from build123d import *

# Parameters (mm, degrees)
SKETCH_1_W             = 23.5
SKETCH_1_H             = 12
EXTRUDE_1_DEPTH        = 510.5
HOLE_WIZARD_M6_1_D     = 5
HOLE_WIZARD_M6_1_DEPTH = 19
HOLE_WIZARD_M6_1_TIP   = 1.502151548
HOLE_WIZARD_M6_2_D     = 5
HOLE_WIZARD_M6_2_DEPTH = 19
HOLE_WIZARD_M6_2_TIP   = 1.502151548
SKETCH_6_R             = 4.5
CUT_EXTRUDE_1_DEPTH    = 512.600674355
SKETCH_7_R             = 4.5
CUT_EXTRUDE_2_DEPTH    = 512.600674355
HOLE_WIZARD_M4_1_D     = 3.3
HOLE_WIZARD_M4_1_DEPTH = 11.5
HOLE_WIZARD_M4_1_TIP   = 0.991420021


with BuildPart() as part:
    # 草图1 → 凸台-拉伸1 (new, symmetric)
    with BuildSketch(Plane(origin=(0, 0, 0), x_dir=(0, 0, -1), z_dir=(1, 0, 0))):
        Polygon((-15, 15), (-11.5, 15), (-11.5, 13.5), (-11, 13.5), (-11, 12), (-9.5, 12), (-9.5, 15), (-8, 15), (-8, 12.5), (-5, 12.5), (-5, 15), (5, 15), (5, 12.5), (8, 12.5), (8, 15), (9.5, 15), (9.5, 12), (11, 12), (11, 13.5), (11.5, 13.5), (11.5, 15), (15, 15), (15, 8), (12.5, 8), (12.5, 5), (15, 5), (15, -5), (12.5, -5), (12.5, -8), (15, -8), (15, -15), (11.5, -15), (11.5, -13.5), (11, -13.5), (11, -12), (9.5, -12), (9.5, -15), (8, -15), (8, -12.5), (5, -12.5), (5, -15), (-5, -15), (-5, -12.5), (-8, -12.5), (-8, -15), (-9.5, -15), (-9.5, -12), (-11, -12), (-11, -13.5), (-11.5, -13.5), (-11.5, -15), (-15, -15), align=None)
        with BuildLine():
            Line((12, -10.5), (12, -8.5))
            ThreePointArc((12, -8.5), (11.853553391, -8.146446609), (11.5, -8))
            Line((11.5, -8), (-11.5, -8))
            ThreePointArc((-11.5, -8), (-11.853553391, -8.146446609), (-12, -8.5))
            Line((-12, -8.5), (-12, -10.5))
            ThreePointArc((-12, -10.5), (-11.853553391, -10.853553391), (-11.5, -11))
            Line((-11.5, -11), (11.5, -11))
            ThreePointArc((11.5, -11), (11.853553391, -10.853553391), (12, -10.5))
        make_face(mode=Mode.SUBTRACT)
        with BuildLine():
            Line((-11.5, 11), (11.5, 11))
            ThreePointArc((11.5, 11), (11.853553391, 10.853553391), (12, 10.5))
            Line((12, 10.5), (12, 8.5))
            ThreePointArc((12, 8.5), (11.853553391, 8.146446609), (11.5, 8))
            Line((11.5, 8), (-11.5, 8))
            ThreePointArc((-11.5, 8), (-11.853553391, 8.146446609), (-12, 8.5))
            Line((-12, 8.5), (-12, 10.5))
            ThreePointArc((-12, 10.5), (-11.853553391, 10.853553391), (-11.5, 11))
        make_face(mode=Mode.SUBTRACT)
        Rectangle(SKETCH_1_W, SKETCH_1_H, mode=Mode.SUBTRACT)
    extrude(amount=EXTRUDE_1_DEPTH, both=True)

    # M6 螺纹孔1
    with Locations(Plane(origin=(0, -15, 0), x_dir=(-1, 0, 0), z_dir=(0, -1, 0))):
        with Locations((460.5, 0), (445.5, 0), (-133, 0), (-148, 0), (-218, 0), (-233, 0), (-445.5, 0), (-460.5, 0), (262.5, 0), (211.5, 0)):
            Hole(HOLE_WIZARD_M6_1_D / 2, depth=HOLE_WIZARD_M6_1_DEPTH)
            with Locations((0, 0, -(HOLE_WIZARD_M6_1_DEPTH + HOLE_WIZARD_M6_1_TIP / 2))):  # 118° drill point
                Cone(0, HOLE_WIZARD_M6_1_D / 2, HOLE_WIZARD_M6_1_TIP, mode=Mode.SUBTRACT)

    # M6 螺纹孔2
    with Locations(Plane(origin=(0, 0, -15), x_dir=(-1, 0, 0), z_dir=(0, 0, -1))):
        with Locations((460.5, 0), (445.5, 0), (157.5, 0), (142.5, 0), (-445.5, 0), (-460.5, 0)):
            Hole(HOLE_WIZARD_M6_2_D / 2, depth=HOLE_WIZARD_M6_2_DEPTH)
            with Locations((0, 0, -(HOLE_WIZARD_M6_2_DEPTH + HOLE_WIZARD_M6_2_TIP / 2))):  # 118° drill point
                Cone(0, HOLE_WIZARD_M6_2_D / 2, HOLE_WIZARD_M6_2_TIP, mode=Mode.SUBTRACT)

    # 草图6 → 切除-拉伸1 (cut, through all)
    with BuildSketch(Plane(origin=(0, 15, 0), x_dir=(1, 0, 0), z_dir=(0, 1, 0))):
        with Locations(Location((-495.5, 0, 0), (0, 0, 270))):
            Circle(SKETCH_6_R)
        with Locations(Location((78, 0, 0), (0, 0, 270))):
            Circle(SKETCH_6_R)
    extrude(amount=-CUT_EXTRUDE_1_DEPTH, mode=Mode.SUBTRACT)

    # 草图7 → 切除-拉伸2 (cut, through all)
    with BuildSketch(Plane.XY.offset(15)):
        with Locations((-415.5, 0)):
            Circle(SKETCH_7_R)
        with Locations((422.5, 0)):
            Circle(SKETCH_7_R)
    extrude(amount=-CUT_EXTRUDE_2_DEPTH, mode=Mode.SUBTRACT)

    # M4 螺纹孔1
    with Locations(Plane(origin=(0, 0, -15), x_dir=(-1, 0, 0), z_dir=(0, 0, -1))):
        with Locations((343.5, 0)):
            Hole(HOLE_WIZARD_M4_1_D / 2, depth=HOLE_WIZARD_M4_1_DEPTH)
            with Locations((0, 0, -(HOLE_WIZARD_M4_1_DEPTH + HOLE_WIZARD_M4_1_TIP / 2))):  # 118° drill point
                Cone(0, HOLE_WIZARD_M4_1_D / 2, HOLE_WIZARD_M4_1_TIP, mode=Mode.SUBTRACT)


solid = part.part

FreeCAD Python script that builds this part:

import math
import FreeCAD as App
import Part
import Sketcher
from FreeCAD import Vector
Q = App.Units.Quantity


def add_polygon(sketch, points):
    """Adds a closed chain of lines whose ends are joined by coincident constraints."""
    first, n = sketch.GeometryCount, len(points)
    for a, b in zip(points, points[1:] + points[:1]):
        sketch.addGeometry(Part.LineSegment(App.Vector(*a, 0), App.Vector(*b, 0)), False)
    for i in range(n):
        sketch.addConstraint(Sketcher.Constraint("Coincident", first + i, 2, first + (i + 1) % n, 1))

doc = App.newDocument("Part")
body = doc.addObject("PartDesign::Body", "Body")

# Sketch on YZ plane
sketch1 = doc.addObject("Sketcher::SketchObject", "Sketch")
body.addObject(sketch1)
sketch1.AttachmentSupport = (doc.YZ_Plane, [""])
sketch1.MapMode = "FlatFace"
add_polygon(sketch1, [(15, 11.5), (15, 15), (-15, 15), (-15, 11.5), (-13.5, 11.5), (-13.5, 11), (-12, 11), (-12, 9.5), (-15, 9.5), (-15, 8), (-12.5, 8), (-12.5, 5), (-15, 5), (-15, -5), (-12.5, -5), (-12.5, -8), (-15, -8), (-15, -9.5), (-12, -9.5), (-12, -11), (-13.5, -11), (-13.5, -11.5), (-15, -11.5), (-15, -15), (-8, -15), (-8, -12.5), (-5, -12.5), (-5, -15), (5, -15), (5, -12.5), (8, -12.5), (8, -15), (15, -15), (15, -11.5), (13.5, -11.5), (13.5, -11), (12, -11), (12, -9.5), (15, -9.5), (15, -8), (12.5, -8), (12.5, -5), (15, -5), (15, 5), (12.5, 5), (12.5, 8), (15, 8), (15, 9.5), (12, 9.5), (12, 11), (13.5, 11), (13.5, 11.5)])  # lines 0-51
sketch1.addGeometry(Part.ArcOfCircle(Part.Circle(Vector(-10.5, -11.5, 0), Vector(0, 0, 1), 0.5), math.radians(180), math.radians(270)), False)  # 52
sketch1.addGeometry(Part.LineSegment(Vector(-11, -11.5, 0), Vector(-11, 11.5, 0)), False)  # 53
sketch1.addGeometry(Part.ArcOfCircle(Part.Circle(Vector(-10.5, 11.5, 0), Vector(0, 0, 1), 0.5), math.radians(90), math.radians(180)), False)  # 54
sketch1.addGeometry(Part.LineSegment(Vector(-10.5, 12, 0), Vector(-8.5, 12, 0)), False)  # 55
sketch1.addGeometry(Part.ArcOfCircle(Part.Circle(Vector(-8.5, 11.5, 0), Vector(0, 0, 1), 0.5), math.radians(0), math.radians(90)), False)  # 56
sketch1.addGeometry(Part.LineSegment(Vector(-8, 11.5, 0), Vector(-8, -11.5, 0)), False)  # 57
sketch1.addGeometry(Part.ArcOfCircle(Part.Circle(Vector(-8.5, -11.5, 0), Vector(0, 0, 1), 0.5), math.radians(-90), math.radians(0)), False)  # 58
sketch1.addGeometry(Part.LineSegment(Vector(-8.5, -12, 0), Vector(-10.5, -12, 0)), False)  # 59
add_polygon(sketch1, [(-6, 11.75), (6, 11.75), (6, -11.75), (-6, -11.75)])  # lines 60-63
sketch1.addGeometry(Part.LineSegment(Vector(11, 11.5, 0), Vector(11, -11.5, 0)), False)  # 64
sketch1.addGeometry(Part.ArcOfCircle(Part.Circle(Vector(10.5, -11.5, 0), Vector(0, 0, 1), 0.5), math.radians(-90), math.radians(0)), False)  # 65
sketch1.addGeometry(Part.LineSegment(Vector(10.5, -12, 0), Vector(8.5, -12, 0)), False)  # 66
sketch1.addGeometry(Part.ArcOfCircle(Part.Circle(Vector(8.5, -11.5, 0), Vector(0, 0, 1), 0.5), math.radians(180), math.radians(270)), False)  # 67
sketch1.addGeometry(Part.LineSegment(Vector(8, -11.5, 0), Vector(8, 11.5, 0)), False)  # 68
sketch1.addGeometry(Part.ArcOfCircle(Part.Circle(Vector(8.5, 11.5, 0), Vector(0, 0, 1), 0.5), math.radians(90), math.radians(180)), False)  # 69
sketch1.addGeometry(Part.LineSegment(Vector(8.5, 12, 0), Vector(10.5, 12, 0)), False)  # 70
sketch1.addGeometry(Part.ArcOfCircle(Part.Circle(Vector(10.5, 11.5, 0), Vector(0, 0, 1), 0.5), math.radians(0), math.radians(90)), False)  # 71
sketch1.addConstraint(Sketcher.Constraint("Tangent", 52, 1, 53, 1))
sketch1.addConstraint(Sketcher.Constraint("Tangent", 53, 2, 54, 2))
sketch1.addConstraint(Sketcher.Constraint("Tangent", 54, 1, 55, 1))
sketch1.addConstraint(Sketcher.Constraint("Tangent", 55, 2, 56, 2))
sketch1.addConstraint(Sketcher.Constraint("Tangent", 56, 1, 57, 1))
sketch1.addConstraint(Sketcher.Constraint("Tangent", 57, 2, 58, 2))
sketch1.addConstraint(Sketcher.Constraint("Tangent", 58, 1, 59, 1))
sketch1.addConstraint(Sketcher.Constraint("Tangent", 59, 2, 52, 2))
sketch1.addConstraint(Sketcher.Constraint("Tangent", 64, 2, 65, 2))
sketch1.addConstraint(Sketcher.Constraint("Tangent", 65, 1, 66, 1))
sketch1.addConstraint(Sketcher.Constraint("Tangent", 66, 2, 67, 2))
sketch1.addConstraint(Sketcher.Constraint("Tangent", 67, 1, 68, 1))
sketch1.addConstraint(Sketcher.Constraint("Tangent", 68, 2, 69, 2))
sketch1.addConstraint(Sketcher.Constraint("Tangent", 69, 1, 70, 1))
sketch1.addConstraint(Sketcher.Constraint("Tangent", 70, 2, 71, 2))
sketch1.addConstraint(Sketcher.Constraint("Tangent", 71, 1, 64, 1))
sketch1.addConstraint(Sketcher.Constraint("Vertical", 0))
sketch1.addConstraint(Sketcher.Constraint("Horizontal", 1))
sketch1.addConstraint(Sketcher.Constraint("Vertical", 2))
sketch1.addConstraint(Sketcher.Constraint("Horizontal", 3))
sketch1.addConstraint(Sketcher.Constraint("Vertical", 4))
sketch1.addConstraint(Sketcher.Constraint("Horizontal", 5))
sketch1.addConstraint(Sketcher.Constraint("Vertical", 6))
sketch1.addConstraint(Sketcher.Constraint("Horizontal", 7))
sketch1.addConstraint(Sketcher.Constraint("Vertical", 8))
sketch1.addConstraint(Sketcher.Constraint("Horizontal", 9))
sketch1.addConstraint(Sketcher.Constraint("Vertical", 10))
sketch1.addConstraint(Sketcher.Constraint("Horizontal", 11))
sketch1.addConstraint(Sketcher.Constraint("Vertical", 12))
sketch1.addConstraint(Sketcher.Constraint("Horizontal", 13))
sketch1.addConstraint(Sketcher.Constraint("Vertical", 14))
sketch1.addConstraint(Sketcher.Constraint("Horizontal", 15))
sketch1.addConstraint(Sketcher.Constraint("Vertical", 16))
sketch1.addConstraint(Sketcher.Constraint("Horizontal", 17))
sketch1.addConstraint(Sketcher.Constraint("Vertical", 18))
sketch1.addConstraint(Sketcher.Constraint("Horizontal", 19))
sketch1.addConstraint(Sketcher.Constraint("Vertical", 20))
sketch1.addConstraint(Sketcher.Constraint("Horizontal", 21))
sketch1.addConstraint(Sketcher.Constraint("Vertical", 22))
sketch1.addConstraint(Sketcher.Constraint("Horizontal", 23))
sketch1.addConstraint(Sketcher.Constraint("Vertical", 24))
sketch1.addConstraint(Sketcher.Constraint("Horizontal", 25))
sketch1.addConstraint(Sketcher.Constraint("Vertical", 26))
sketch1.addConstraint(Sketcher.Constraint("Horizontal", 27))
sketch1.addConstraint(Sketcher.Constraint("Vertical", 28))
sketch1.addConstraint(Sketcher.Constraint("Horizontal", 29))
sketch1.addConstraint(Sketcher.Constraint("Vertical", 30))
sketch1.addConstraint(Sketcher.Constraint("Horizontal", 31))
sketch1.addConstraint(Sketcher.Constraint("Vertical", 32))
sketch1.addConstraint(Sketcher.Constraint("Horizontal", 33))
sketch1.addConstraint(Sketcher.Constraint("Vertical", 34))
sketch1.addConstraint(Sketcher.Constraint("Horizontal", 35))
sketch1.addConstraint(Sketcher.Constraint("Vertical", 36))
sketch1.addConstraint(Sketcher.Constraint("Horizontal", 37))
sketch1.addConstraint(Sketcher.Constraint("Vertical", 38))
sketch1.addConstraint(Sketcher.Constraint("Horizontal", 39))
sketch1.addConstraint(Sketcher.Constraint("Vertical", 40))
sketch1.addConstraint(Sketcher.Constraint("Horizontal", 41))
sketch1.addConstraint(Sketcher.Constraint("Vertical", 42))
sketch1.addConstraint(Sketcher.Constraint("Horizontal", 43))
sketch1.addConstraint(Sketcher.Constraint("Vertical", 44))
sketch1.addConstraint(Sketcher.Constraint("Horizontal", 45))
sketch1.addConstraint(Sketcher.Constraint("Vertical", 46))
sketch1.addConstraint(Sketcher.Constraint("Horizontal", 47))
sketch1.addConstraint(Sketcher.Constraint("Vertical", 48))
sketch1.addConstraint(Sketcher.Constraint("Horizontal", 49))
sketch1.addConstraint(Sketcher.Constraint("Vertical", 50))
sketch1.addConstraint(Sketcher.Constraint("Horizontal", 51))
sketch1.addConstraint(Sketcher.Constraint("Vertical", 53))
sketch1.addConstraint(Sketcher.Constraint("Horizontal", 55))
sketch1.addConstraint(Sketcher.Constraint("Vertical", 57))
sketch1.addConstraint(Sketcher.Constraint("Horizontal", 59))
sketch1.addConstraint(Sketcher.Constraint("Horizontal", 60))
sketch1.addConstraint(Sketcher.Constraint("Vertical", 61))
sketch1.addConstraint(Sketcher.Constraint("Horizontal", 62))
sketch1.addConstraint(Sketcher.Constraint("Vertical", 63))
sketch1.addConstraint(Sketcher.Constraint("Vertical", 64))
sketch1.addConstraint(Sketcher.Constraint("Horizontal", 66))
sketch1.addConstraint(Sketcher.Constraint("Vertical", 68))
sketch1.addConstraint(Sketcher.Constraint("Horizontal", 70))
sketch1.addConstraint(Sketcher.Constraint("Equal", 52, 54))
sketch1.addConstraint(Sketcher.Constraint("Equal", 54, 56))
sketch1.addConstraint(Sketcher.Constraint("Equal", 56, 58))
sketch1.addConstraint(Sketcher.Constraint("Equal", 58, 65))
sketch1.addConstraint(Sketcher.Constraint("Equal", 65, 67))
sketch1.addConstraint(Sketcher.Constraint("Equal", 67, 69))
sketch1.addConstraint(Sketcher.Constraint("Equal", 69, 71))
sketch1.addConstraint(Sketcher.Constraint("Symmetric", 54, 3, 65, 3, -1, 1))
sketch1.addConstraint(Sketcher.Constraint("Symmetric", 58, 3, 69, 3, -1, 1))
sketch1.addConstraint(Sketcher.Constraint("Symmetric", 0, 2, 22, 2, -1, 1))
sketch1.addConstraint(Sketcher.Constraint("Symmetric", 1, 2, 31, 2, -1, 1))
sketch1.addConstraint(Sketcher.Constraint("Symmetric", 3, 2, 33, 2, -1, 1))
sketch1.addConstraint(Sketcher.Constraint("Symmetric", 5, 2, 35, 2, -1, 1))
sketch1.addConstraint(Sketcher.Constraint("Symmetric", 7, 2, 37, 2, -1, 1))
sketch1.addConstraint(Sketcher.Constraint("Symmetric", 9, 2, 39, 2, -1, 1))
sketch1.addConstraint(Sketcher.Constraint("Symmetric", 11, 2, 41, 2, -1, 1))
sketch1.addConstraint(Sketcher.Constraint("Symmetric", 13, 2, 43, 2, -1, 1))
sketch1.addConstraint(Sketcher.Constraint("Symmetric", 15, 2, 45, 2, -1, 1))
sketch1.addConstraint(Sketcher.Constraint("Symmetric", 17, 2, 47, 2, -1, 1))
sketch1.addConstraint(Sketcher.Constraint("Symmetric", 19, 2, 49, 2, -1, 1))
sketch1.addConstraint(Sketcher.Constraint("Symmetric", 60, 2, 62, 2, -1, 1))
sketch1.addConstraint(Sketcher.Constraint("Symmetric", 25, 2, 28, 2, -2))
sketch1.addConstraint(Sketcher.Constraint("Symmetric", 21, 2, 32, 2, -2))
sketch1.addConstraint(Sketcher.Constraint("Symmetric", 19, 2, 34, 2, -2))
sketch1.addConstraint(Sketcher.Constraint("Symmetric", 17, 2, 36, 2, -2))
sketch1.addConstraint(Sketcher.Constraint("Symmetric", 15, 2, 38, 2, -2))
sketch1.addConstraint(Sketcher.Constraint("Symmetric", 13, 2, 40, 2, -2))
sketch1.addConstraint(Sketcher.Constraint("Horizontal", 58, 3, 65, 3))
sketch1.addConstraint(Sketcher.Constraint("Horizontal", 71, 3, 2, 2))
sketch1.addConstraint(Sketcher.Constraint("Horizontal", 23, 2, 26, 2))
sketch1.addConstraint(Sketcher.Constraint("Horizontal", 3, 2, 50, 2))
sketch1.addConstraint(Sketcher.Constraint("Vertical", 2, 2, 7, 2))
sketch1.addConstraint(Sketcher.Constraint("Vertical", 8, 2, 11, 2))
sketch1.addConstraint(Sketcher.Constraint("Vertical", 24, 2, 56, 1))
sketch1.addConstraint(Sketcher.Constraint("Vertical", 30, 2, 67, 1))
sketch1.addConstraint(Sketcher.Constraint("Equal", 3, 5))
sketch1.addConstraint(Sketcher.Constraint("Equal", 17, 25))
sketch1.addConstraint(Sketcher.Constraint("Equal", 51, 6))
sketch1.addConstraint(Sketcher.Constraint("Equal", 6, 8))
sketch1.addConstraint(Sketcher.Constraint("Equal", 47, 10))
sketch1.addConstraint(Sketcher.Constraint("Equal", 27, 12))
sketch1.addConstraint(Sketcher.Constraint("Equal", 45, 24))
sketch1.addConstraint(Sketcher.Constraint("Radius", 52, Q("0.5 mm")))
sketch1.addConstraint(Sketcher.Constraint("DistanceX", 1, 2, 1, 1, Q("30 mm")))
sketch1.addConstraint(Sketcher.Constraint("DistanceX", 7, 2, 7, 1, Q("3 mm")))
sketch1.addConstraint(Sketcher.Constraint("DistanceX", 23, 1, 23, 2, Q("7 mm")))
sketch1.addConstraint(Sketcher.Constraint("DistanceX", 55, 1, 55, 2, Q("2 mm")))
sketch1.addConstraint(Sketcher.Constraint("DistanceX", 60, 1, 60, 2, Q("12 mm")))
sketch1.addConstraint(Sketcher.Constraint("DistanceY", 53, 1, 53, 2, Q("23 mm")))
sketch1.addConstraint(Sketcher.Constraint("DistanceX", 9, 1, 9, 2, Q("2.5 mm")))
sketch1.addConstraint(Sketcher.Constraint("DistanceY", 0, 1, 0, 2, Q("3.5 mm")))
sketch1.addConstraint(Sketcher.Constraint("DistanceY", 61, 2, 61, 1, Q("23.5 mm")))
pad1 = doc.addObject("PartDesign::Pad", "Pad")
body.addObject(pad1)
pad1.Profile = sketch1
pad1.Length = 1021
pad1.Midplane = True

# Sketch on XZ plane
sketch2 = doc.addObject("Sketcher::SketchObject", "Sketch001")
body.addObject(sketch2)
sketch2.AttachmentSupport = (doc.XZ_Plane, [""])
sketch2.MapMode = "FlatFace"
sketch2.AttachmentOffset = App.Placement(Vector(0, 0, 15), App.Rotation())
sketch2.addGeometry(Part.Circle(Vector(-460.5, 0, 0), Vector(0, 0, 1), 2.5), False)
sketch2.addGeometry(Part.Circle(Vector(-445.5, 0, 0), Vector(0, 0, 1), 2.5), False)
sketch2.addGeometry(Part.Circle(Vector(133, 0, 0), Vector(0, 0, 1), 2.5), False)
sketch2.addGeometry(Part.Circle(Vector(148, 0, 0), Vector(0, 0, 1), 2.5), False)
sketch2.addGeometry(Part.Circle(Vector(218, 0, 0), Vector(0, 0, 1), 2.5), False)
sketch2.addGeometry(Part.Circle(Vector(233, 0, 0), Vector(0, 0, 1), 2.5), False)
sketch2.addGeometry(Part.Circle(Vector(445.5, 0, 0), Vector(0, 0, 1), 2.5), False)
sketch2.addGeometry(Part.Circle(Vector(460.5, 0, 0), Vector(0, 0, 1), 2.5), False)
sketch2.addGeometry(Part.Circle(Vector(-262.5, 0, 0), Vector(0, 0, 1), 2.5), False)
sketch2.addGeometry(Part.Circle(Vector(-211.5, 0, 0), Vector(0, 0, 1), 2.5), False)
sketch2.addConstraint(Sketcher.Constraint("Equal", 0, 1))
sketch2.addConstraint(Sketcher.Constraint("Equal", 1, 2))
sketch2.addConstraint(Sketcher.Constraint("Equal", 2, 3))
sketch2.addConstraint(Sketcher.Constraint("Equal", 3, 4))
sketch2.addConstraint(Sketcher.Constraint("Equal", 4, 5))
sketch2.addConstraint(Sketcher.Constraint("Equal", 5, 6))
sketch2.addConstraint(Sketcher.Constraint("Equal", 6, 7))
sketch2.addConstraint(Sketcher.Constraint("Equal", 7, 8))
sketch2.addConstraint(Sketcher.Constraint("Equal", 8, 9))
sketch2.addConstraint(Sketcher.Constraint("Symmetric", 1, 3, 6, 3, -1, 1))
sketch2.addConstraint(Sketcher.Constraint("Symmetric", 0, 3, 7, 3, -1, 1))
sketch2.addConstraint(Sketcher.Constraint("PointOnObject", 0, 3, -1))
sketch2.addConstraint(Sketcher.Constraint("PointOnObject", 1, 3, -1))
sketch2.addConstraint(Sketcher.Constraint("PointOnObject", 2, 3, -1))
sketch2.addConstraint(Sketcher.Constraint("PointOnObject", 3, 3, -1))
sketch2.addConstraint(Sketcher.Constraint("PointOnObject", 4, 3, -1))
sketch2.addConstraint(Sketcher.Constraint("PointOnObject", 5, 3, -1))
sketch2.addConstraint(Sketcher.Constraint("PointOnObject", 8, 3, -1))
sketch2.addConstraint(Sketcher.Constraint("PointOnObject", 9, 3, -1))
sketch2.addConstraint(Sketcher.Constraint("Diameter", 0, Q("5 mm")))
sketch2.addConstraint(Sketcher.Constraint("DistanceX", -1, 1, 2, 3, Q("133 mm")))
sketch2.addConstraint(Sketcher.Constraint("DistanceX", -1, 1, 3, 3, Q("148 mm")))
sketch2.addConstraint(Sketcher.Constraint("DistanceX", -1, 1, 4, 3, Q("218 mm")))
sketch2.addConstraint(Sketcher.Constraint("DistanceX", -1, 1, 5, 3, Q("233 mm")))
sketch2.addConstraint(Sketcher.Constraint("DistanceX", 0, 3, 1, 3, Q("15 mm")))
sketch2.addConstraint(Sketcher.Constraint("DistanceX", 1, 3, 6, 3, Q("891 mm")))
sketch2.addConstraint(Sketcher.Constraint("DistanceX", 1, 3, 8, 3, Q("183 mm")))
sketch2.addConstraint(Sketcher.Constraint("DistanceX", 8, 3, 9, 3, Q("51 mm")))
doc.recompute()
hole = doc.addObject("PartDesign::Hole", "Hole")
body.addObject(hole)
hole.Profile = sketch2
hole.ThreadType = "None"
hole.Diameter = 5
hole.DepthType = "Dimension"
hole.Depth = 19
hole.DrillPoint = "Angled"
hole.DrillPointAngle = 118

# Sketch on XY plane
sketch3 = doc.addObject("Sketcher::SketchObject", "Sketch002")
body.addObject(sketch3)
sketch3.AttachmentSupport = (doc.XY_Plane, [""])
sketch3.MapMode = "FlatFace"
sketch3.AttachmentOffset = App.Placement(Vector(0, 0, -15), App.Rotation())
sketch3.addGeometry(Part.Circle(Vector(-460.5, 0, 0), Vector(0, 0, 1), 2.5), False)
sketch3.addGeometry(Part.Circle(Vector(-445.5, 0, 0), Vector(0, 0, 1), 2.5), False)
sketch3.addGeometry(Part.Circle(Vector(-157.5, 0, 0), Vector(0, 0, 1), 2.5), False)
sketch3.addGeometry(Part.Circle(Vector(-142.5, 0, 0), Vector(0, 0, 1), 2.5), False)
sketch3.addGeometry(Part.Circle(Vector(445.5, 0, 0), Vector(0, 0, 1), 2.5), False)
sketch3.addGeometry(Part.Circle(Vector(460.5, 0, 0), Vector(0, 0, 1), 2.5), False)
sketch3.addConstraint(Sketcher.Constraint("Equal", 0, 1))
sketch3.addConstraint(Sketcher.Constraint("Equal", 1, 2))
sketch3.addConstraint(Sketcher.Constraint("Equal", 2, 3))
sketch3.addConstraint(Sketcher.Constraint("Equal", 3, 4))
sketch3.addConstraint(Sketcher.Constraint("Equal", 4, 5))
sketch3.addConstraint(Sketcher.Constraint("Symmetric", 1, 3, 4, 3, -1, 1))
sketch3.addConstraint(Sketcher.Constraint("Symmetric", 0, 3, 5, 3, -1, 1))
sketch3.addConstraint(Sketcher.Constraint("PointOnObject", 0, 3, -1))
sketch3.addConstraint(Sketcher.Constraint("PointOnObject", 1, 3, -1))
sketch3.addConstraint(Sketcher.Constraint("PointOnObject", 2, 3, -1))
sketch3.addConstraint(Sketcher.Constraint("PointOnObject", 3, 3, -1))
sketch3.addConstraint(Sketcher.Constraint("Diameter", 0, Q("5 mm")))
sketch3.addConstraint(Sketcher.Constraint("DistanceX", 0, 3, 1, 3, Q("15 mm")))
sketch3.addConstraint(Sketcher.Constraint("DistanceX", 1, 3, 2, 3, Q("288 mm")))
sketch3.addConstraint(Sketcher.Constraint("DistanceX", 2, 3, 3, 3, Q("15 mm")))
sketch3.addConstraint(Sketcher.Constraint("DistanceX", 3, 3, 4, 3, Q("588 mm")))
doc.recompute()
hole2 = doc.addObject("PartDesign::Hole", "Hole001")
body.addObject(hole2)
hole2.Profile = sketch3
hole2.ThreadType = "None"
hole2.Diameter = 5
hole2.DepthType = "Dimension"
hole2.Depth = 19
hole2.DrillPoint = "Angled"
hole2.DrillPointAngle = 118
hole2.Reversed = True

# Sketch on XZ plane
sketch4 = doc.addObject("Sketcher::SketchObject", "Sketch003")
body.addObject(sketch4)
sketch4.AttachmentSupport = (doc.XZ_Plane, [""])
sketch4.MapMode = "FlatFace"
sketch4.AttachmentOffset = App.Placement(Vector(0, 0, -15), App.Rotation())
sketch4.addGeometry(Part.Circle(Vector(-495.5, 0, 0), Vector(0, 0, 1), 4.5), False)
sketch4.addGeometry(Part.Circle(Vector(78, 0, 0), Vector(0, 0, 1), 4.5), False)
sketch4.addConstraint(Sketcher.Constraint("Equal", 0, 1))
sketch4.addConstraint(Sketcher.Constraint("PointOnObject", 0, 3, -1))
sketch4.addConstraint(Sketcher.Constraint("PointOnObject", 1, 3, -1))
sketch4.addConstraint(Sketcher.Constraint("Diameter", 0, Q("9 mm")))
sketch4.addConstraint(Sketcher.Constraint("DistanceX", -1, 1, 1, 3, Q("78 mm")))
sketch4.addConstraint(Sketcher.Constraint("DistanceX", 0, 3, -1, 1, Q("495.5 mm")))
pocket1 = doc.addObject("PartDesign::Pocket", "Pocket")
body.addObject(pocket1)
pocket1.Profile = sketch4
pocket1.Type = "ThroughAll"
pocket1.Reversed = True

# Sketch on XY plane
sketch5 = doc.addObject("Sketcher::SketchObject", "Sketch004")
body.addObject(sketch5)
sketch5.AttachmentSupport = (doc.XY_Plane, [""])
sketch5.MapMode = "FlatFace"
sketch5.AttachmentOffset = App.Placement(Vector(0, 0, 15), App.Rotation())
sketch5.addGeometry(Part.Circle(Vector(-415.5, 0, 0), Vector(0, 0, 1), 4.5), False)
sketch5.addGeometry(Part.Circle(Vector(422.5, 0, 0), Vector(0, 0, 1), 4.5), False)
sketch5.addConstraint(Sketcher.Constraint("Equal", 0, 1))
sketch5.addConstraint(Sketcher.Constraint("PointOnObject", 0, 3, -1))
sketch5.addConstraint(Sketcher.Constraint("PointOnObject", 1, 3, -1))
sketch5.addConstraint(Sketcher.Constraint("Diameter", 0, Q("9 mm")))
sketch5.addConstraint(Sketcher.Constraint("DistanceX", 0, 3, 1, 3, Q("838 mm")))
sketch5.addConstraint(Sketcher.Constraint("DistanceX", 0, 3, -1, 1, Q("415.5 mm")))
pocket2 = doc.addObject("PartDesign::Pocket", "Pocket001")
body.addObject(pocket2)
pocket2.Profile = sketch5
pocket2.Type = "ThroughAll"

# Sketch on XY plane
sketch6 = doc.addObject("Sketcher::SketchObject", "Sketch005")
body.addObject(sketch6)
sketch6.AttachmentSupport = (doc.XY_Plane, [""])
sketch6.MapMode = "FlatFace"
sketch6.AttachmentOffset = App.Placement(Vector(0, 0, -15), App.Rotation())
sketch6.addGeometry(Part.Circle(Vector(-343.5, 0, 0), Vector(0, 0, 1), 1.6), False)
sketch6.addConstraint(Sketcher.Constraint("PointOnObject", 0, 3, -1))
sketch6.addConstraint(Sketcher.Constraint("Diameter", 0, Q("3.3 mm")))
sketch6.addConstraint(Sketcher.Constraint("DistanceX", 0, 3, -1, 1, Q("343.5 mm")))
doc.recompute()
hole3 = doc.addObject("PartDesign::Hole", "Hole002")
body.addObject(hole3)
hole3.Profile = sketch6
hole3.ThreadType = "None"
hole3.Diameter = 3.3
hole3.DepthType = "Dimension"
hole3.Depth = 11.5
hole3.DrillPoint = "Angled"
hole3.DrillPointAngle = 118
hole3.Reversed = True

doc.recompute()
